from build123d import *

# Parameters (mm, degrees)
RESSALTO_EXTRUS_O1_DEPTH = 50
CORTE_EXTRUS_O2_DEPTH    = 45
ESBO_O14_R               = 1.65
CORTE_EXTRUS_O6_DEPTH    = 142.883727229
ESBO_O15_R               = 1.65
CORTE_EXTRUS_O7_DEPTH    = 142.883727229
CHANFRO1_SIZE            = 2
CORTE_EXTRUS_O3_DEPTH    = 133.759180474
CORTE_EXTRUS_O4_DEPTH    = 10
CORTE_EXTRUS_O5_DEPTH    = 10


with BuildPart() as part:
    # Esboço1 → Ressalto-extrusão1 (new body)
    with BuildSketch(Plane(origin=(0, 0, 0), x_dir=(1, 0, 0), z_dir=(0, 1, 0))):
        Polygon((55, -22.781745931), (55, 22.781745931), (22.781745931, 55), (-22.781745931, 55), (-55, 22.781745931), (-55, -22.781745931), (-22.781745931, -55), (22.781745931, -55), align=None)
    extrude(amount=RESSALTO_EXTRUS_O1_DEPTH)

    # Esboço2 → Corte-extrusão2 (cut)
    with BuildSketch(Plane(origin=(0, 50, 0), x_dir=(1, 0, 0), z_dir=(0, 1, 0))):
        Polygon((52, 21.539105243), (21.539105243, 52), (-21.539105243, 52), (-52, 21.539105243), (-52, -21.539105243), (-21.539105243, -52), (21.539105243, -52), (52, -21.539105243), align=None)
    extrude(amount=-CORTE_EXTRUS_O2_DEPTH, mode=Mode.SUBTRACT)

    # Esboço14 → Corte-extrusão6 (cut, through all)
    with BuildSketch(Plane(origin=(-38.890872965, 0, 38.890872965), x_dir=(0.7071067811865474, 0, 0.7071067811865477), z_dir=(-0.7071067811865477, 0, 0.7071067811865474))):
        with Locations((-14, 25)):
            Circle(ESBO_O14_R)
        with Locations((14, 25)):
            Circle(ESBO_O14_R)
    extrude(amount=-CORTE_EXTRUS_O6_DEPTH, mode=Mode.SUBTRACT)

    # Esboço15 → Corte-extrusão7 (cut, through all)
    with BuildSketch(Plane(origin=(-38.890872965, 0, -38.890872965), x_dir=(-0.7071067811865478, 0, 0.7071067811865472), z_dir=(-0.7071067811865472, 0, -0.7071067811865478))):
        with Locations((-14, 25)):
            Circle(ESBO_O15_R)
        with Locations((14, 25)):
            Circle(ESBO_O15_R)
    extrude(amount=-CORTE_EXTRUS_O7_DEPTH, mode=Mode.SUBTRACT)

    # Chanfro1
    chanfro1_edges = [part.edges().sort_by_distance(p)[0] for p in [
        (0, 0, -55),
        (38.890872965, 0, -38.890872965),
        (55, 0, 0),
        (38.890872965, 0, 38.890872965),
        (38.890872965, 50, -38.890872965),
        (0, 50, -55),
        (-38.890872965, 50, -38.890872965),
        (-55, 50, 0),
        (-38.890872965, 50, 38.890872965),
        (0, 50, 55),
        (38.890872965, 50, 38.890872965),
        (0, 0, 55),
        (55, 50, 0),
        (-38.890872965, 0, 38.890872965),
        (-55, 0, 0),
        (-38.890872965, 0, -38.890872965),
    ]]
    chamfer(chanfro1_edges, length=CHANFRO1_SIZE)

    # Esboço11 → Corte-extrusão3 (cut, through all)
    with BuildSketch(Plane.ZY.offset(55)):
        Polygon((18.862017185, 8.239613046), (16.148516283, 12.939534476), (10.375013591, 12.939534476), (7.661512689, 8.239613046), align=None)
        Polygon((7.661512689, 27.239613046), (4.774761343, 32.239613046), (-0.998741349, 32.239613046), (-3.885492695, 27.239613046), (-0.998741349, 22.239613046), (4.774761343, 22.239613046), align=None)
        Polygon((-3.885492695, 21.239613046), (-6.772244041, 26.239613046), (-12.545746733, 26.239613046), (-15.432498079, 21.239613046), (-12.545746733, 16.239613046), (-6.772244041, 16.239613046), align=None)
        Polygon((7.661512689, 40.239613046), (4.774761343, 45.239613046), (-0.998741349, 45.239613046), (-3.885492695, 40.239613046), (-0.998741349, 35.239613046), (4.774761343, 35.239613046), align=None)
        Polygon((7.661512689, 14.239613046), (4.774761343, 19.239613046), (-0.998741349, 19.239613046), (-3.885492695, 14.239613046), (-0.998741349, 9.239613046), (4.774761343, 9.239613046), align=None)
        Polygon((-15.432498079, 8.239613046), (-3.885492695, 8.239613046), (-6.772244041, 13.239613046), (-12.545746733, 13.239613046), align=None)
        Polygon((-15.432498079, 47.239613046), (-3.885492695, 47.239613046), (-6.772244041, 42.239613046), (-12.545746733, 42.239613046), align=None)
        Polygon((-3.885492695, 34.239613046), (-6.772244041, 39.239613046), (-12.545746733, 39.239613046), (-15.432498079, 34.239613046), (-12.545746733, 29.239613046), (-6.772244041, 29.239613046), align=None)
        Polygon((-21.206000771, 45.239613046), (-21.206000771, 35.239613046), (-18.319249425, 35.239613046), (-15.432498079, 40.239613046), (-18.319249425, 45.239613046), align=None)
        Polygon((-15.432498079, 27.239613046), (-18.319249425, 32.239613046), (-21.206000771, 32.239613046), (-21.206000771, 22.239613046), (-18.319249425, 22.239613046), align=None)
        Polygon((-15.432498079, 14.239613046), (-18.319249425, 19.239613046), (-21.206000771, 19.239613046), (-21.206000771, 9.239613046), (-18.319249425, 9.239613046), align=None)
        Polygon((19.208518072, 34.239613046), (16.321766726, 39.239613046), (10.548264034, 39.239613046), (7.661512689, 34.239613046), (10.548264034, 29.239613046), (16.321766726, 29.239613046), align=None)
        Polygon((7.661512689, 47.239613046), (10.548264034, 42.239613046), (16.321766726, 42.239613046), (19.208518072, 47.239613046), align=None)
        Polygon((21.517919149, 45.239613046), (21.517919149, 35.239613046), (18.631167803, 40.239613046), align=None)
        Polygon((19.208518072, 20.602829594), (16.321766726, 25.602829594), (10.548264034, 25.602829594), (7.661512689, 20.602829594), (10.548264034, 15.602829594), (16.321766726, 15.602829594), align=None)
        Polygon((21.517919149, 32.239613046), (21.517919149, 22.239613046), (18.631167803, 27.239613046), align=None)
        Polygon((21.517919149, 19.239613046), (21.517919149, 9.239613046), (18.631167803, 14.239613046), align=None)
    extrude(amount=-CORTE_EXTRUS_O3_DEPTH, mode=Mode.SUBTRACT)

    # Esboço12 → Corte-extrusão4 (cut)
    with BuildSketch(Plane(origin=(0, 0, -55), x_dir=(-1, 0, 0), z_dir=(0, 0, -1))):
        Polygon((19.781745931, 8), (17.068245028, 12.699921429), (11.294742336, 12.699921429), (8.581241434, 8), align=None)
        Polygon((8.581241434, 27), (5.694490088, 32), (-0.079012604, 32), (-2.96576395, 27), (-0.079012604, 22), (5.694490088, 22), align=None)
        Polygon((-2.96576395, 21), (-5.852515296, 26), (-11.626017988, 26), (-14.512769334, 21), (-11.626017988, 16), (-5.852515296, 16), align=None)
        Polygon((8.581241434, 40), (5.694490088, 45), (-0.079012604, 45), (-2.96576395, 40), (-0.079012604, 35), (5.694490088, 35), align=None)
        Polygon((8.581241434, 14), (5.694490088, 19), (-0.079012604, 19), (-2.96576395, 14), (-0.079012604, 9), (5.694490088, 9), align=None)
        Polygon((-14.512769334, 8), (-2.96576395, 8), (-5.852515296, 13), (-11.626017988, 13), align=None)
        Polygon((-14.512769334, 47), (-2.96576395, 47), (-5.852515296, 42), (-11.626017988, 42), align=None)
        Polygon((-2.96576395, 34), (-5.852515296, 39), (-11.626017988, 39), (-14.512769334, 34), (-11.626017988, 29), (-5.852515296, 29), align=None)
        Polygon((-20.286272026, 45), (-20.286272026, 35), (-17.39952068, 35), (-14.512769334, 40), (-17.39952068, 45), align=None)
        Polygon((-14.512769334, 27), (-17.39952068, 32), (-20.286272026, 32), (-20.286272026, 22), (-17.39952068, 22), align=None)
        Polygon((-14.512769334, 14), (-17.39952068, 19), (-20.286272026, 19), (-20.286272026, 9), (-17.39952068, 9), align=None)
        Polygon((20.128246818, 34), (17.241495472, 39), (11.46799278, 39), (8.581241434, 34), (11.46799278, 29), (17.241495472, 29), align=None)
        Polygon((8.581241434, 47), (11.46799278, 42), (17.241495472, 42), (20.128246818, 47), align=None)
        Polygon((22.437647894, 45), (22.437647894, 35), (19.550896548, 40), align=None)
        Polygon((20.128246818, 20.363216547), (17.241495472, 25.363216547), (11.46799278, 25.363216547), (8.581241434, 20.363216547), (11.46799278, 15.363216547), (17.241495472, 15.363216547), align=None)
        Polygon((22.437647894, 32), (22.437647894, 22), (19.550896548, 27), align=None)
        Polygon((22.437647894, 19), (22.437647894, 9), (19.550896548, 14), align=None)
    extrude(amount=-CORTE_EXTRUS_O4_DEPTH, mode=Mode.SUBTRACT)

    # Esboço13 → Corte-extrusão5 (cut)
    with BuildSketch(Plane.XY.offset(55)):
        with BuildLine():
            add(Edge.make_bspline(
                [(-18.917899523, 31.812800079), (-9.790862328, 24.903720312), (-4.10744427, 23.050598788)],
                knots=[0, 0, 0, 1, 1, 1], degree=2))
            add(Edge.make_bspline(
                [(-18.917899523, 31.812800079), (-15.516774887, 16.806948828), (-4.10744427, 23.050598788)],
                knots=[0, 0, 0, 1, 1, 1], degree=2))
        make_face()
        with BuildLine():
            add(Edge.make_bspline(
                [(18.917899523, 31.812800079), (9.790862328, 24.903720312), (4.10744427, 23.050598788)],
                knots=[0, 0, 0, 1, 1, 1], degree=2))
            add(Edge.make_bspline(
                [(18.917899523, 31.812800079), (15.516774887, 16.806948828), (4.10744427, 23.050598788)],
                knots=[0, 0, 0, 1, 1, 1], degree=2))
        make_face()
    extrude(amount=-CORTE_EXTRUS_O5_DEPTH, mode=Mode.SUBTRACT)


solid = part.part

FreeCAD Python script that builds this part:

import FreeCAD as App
import Part
import Sketcher
from FreeCAD import Vector
Q = App.Units.Quantity


def edges_at(feature, points):
    """Names of the edges that pass closest to the given points."""
    edges = feature.Shape.Edges
    near = lambda p: min(range(len(edges)), key=lambda i: edges[i].distToShape(Part.Vertex(*p))[0])
    return sorted({f"Edge{near(p) + 1}" for p in points})


def add_polygon(sketch, points):
    """Adds a closed chain of lines whose ends are joined by coincident constraints."""
    first, n = sketch.GeometryCount, len(points)
    for a, b in zip(points, points[1:] + points[:1]):
        sketch.addGeometry(Part.LineSegment(App.Vector(*a, 0), App.Vector(*b, 0)), False)
    for i in range(n):
        sketch.addConstraint(Sketcher.Constraint("Coincident", first + i, 2, first + (i + 1) % n, 1))

doc = App.newDocument("Part")
params = doc.addObject("Spreadsheet::Sheet", "Params")
for row, (alias, value) in enumerate([
    ("pad1_length", "50 mm"),
    ("pocket1_length", "45 mm"),
    ("sketch3_diameter", "3.3 mm"),
    ("sketch4_diameter", "3.3 mm"),
    ("chamfer_size", "2 mm"),
    ("sketch5_width", "10 mm"),
    ("sketch6_height", "10 mm"),
    ("pocket5_length", "10 mm"),
    ("pocket6_length", "10 mm"),
], start=1):
    params.set(f"A{row}", alias)
    params.set(f"B{row}", "=" + value)
    params.setAlias(f"B{row}", alias)

body = doc.addObject("PartDesign::Body", "Body")

# Sketch on XZ plane
sketch1 = body.newObject("Sketcher::SketchObject", "Sketch")
sketch1.AttachmentSupport = (doc.getObject("XZ_Plane"), [""])
sketch1.MapMode = "FlatFace"
add_polygon(sketch1, [(55, 23), (55, -23), (23, -55), (-23, -55), (-55, -23), (-55, 23), (-23, 55), (23, 55)])  # lines 0-7
sketch1.addConstraint([
    Sketcher.Constraint("Vertical", 0),
    Sketcher.Constraint("Horizontal", 2),
    Sketcher.Constraint("Vertical", 4),
    Sketcher.Constraint("Horizontal", 6),
    Sketcher.Constraint("Symmetric", 0, 2, 4, 2, -1, 1),
    Sketcher.Constraint("Symmetric", 1, 2, 5, 2, -1, 1),
    Sketcher.Constraint("Perpendicular", 1, 3),
    Sketcher.Constraint("Perpendicular", 5, 7),
    Sketcher.Constraint("Horizontal", 0, 2, 3, 2),
    Sketcher.Constraint("Horizontal", 4, 2, 7, 2),
    Sketcher.Constraint("Vertical", 2, 2, 5, 2),
    Sketcher.Constraint("Equal", 6, 0),
    Sketcher.Constraint("DistanceX", -1, 1, 0, 2, 55.0),
    Sketcher.Constraint("DistanceX", 2, 2, 2, 1, 45.563492),
])
pad1 = body.newObject("PartDesign::Pad", "Pad")
pad1.Profile = sketch1
pad1.setExpression("Length", "Params.pad1_length")
pad1.Reversed = True

# Sketch on XZ plane
sketch2 = body.newObject("Sketcher::SketchObject", "Sketch001")
sketch2.AttachmentSupport = (doc.getObject("XZ_Plane"), [""])
sketch2.MapMode = "FlatFace"
sketch2.AttachmentOffset = App.Placement(Vector(0, 0, -50), App.Rotation())
add_polygon(sketch2, [(52, -22), (22, -52), (-22, -52), (-52, -22), (-52, 22), (-22, 52), (22, 52), (52, 22)])  # lines 0-7
sketch2.addConstraint([
    Sketcher.Constraint("Horizontal", 1),
    Sketcher.Constraint("Vertical", 3),
    Sketcher.Constraint("Horizontal", 5),
    Sketcher.Constraint("Vertical", 7),
    Sketcher.Constraint("Symmetric", 0, 2, 4, 2, -1, 1),
    Sketcher.Constraint("Symmetric", 2, 2, 6, 2, -1, 1),
    Sketcher.Constraint("Perpendicular", 0, 2),
    Sketcher.Constraint("Perpendicular", 2, 4),
    Sketcher.Constraint("Perpendicular", 4, 6),
    Sketcher.Constraint("Horizontal", 3, 2, 6, 2),
    Sketcher.Constraint("Vertical", 1, 2, 4, 2),
    Sketcher.Constraint("Equal", 5, 3),
    Sketcher.Constraint("DistanceY", 0, 2, -1, 1, 52.0),
    Sketcher.Constraint("DistanceX", 1, 2, 1, 1, 43.07821),
])
pocket1 = body.newObject("PartDesign::Pocket", "Pocket")
pocket1.Profile = sketch2
pocket1.setExpression("Length", "Params.pocket1_length")
pocket1.Reversed = True

# Sketch on an angled plane
sketch3 = body.newObject("Sketcher::SketchObject", "Sketch002")
sketch3.Placement = App.Placement(Vector(-38.890873, 0, 38.890873), App.Rotation(Vector(0.707106781, 0, 0.707106781), Vector(0, 0.999999999, 0), Vector(-0.707106781, 0, 0.707106781), "ZXY"))
sketch3.addGeometry([
    Part.Circle(Vector(-14, 25, 0), Vector(0, 0, 1), 1.6),
    Part.Circle(Vector(14, 25, 0), Vector(0, 0, 1), 1.6),
], False)
sketch3.addConstraint([
    Sketcher.Constraint("Equal", 0, 1),
    Sketcher.Constraint("Symmetric", 0, 3, 1, 3, -2),
    Sketcher.Constraint("Diameter", 0, 3.3),
    Sketcher.Constraint("DistanceX", 0, 3, -1, 1, 14.0),
    Sketcher.Constraint("DistanceY", -1, 1, 0, 3, 25.0),
])
sketch3.setExpression("Constraints[2]", "Params.sketch3_diameter")
pocket2 = body.newObject("PartDesign::Pocket", "Pocket001")
pocket2.Profile = sketch3
pocket2.Type = "ThroughAll"

# Sketch on an angled plane
sketch4 = body.newObject("Sketcher::SketchObject", "Sketch003")
sketch4.Placement = App.Placement(Vector(-38.890873, 0, -38.890873), App.Rotation(Vector(-0.707106781, 0, 0.707106781), Vector(0, 0.999999999, 0), Vector(-0.707106781, 0, -0.707106781), "ZXY"))
sketch4.addGeometry([
    Part.Circle(Vector(-14, 25, 0), Vector(0, 0, 1), 1.6),
    Part.Circle(Vector(14, 25, 0), Vector(0, 0, 1), 1.6),
], False)
sketch4.addConstraint([
    Sketcher.Constraint("Equal", 0, 1),
    Sketcher.Constraint("Symmetric", 0, 3, 1, 3, -2),
    Sketcher.Constraint("Diameter", 0, 3.3),
    Sketcher.Constraint("DistanceX", 0, 3, -1, 1, 14.0),
    Sketcher.Constraint("DistanceY", -1, 1, 0, 3, 25.0),
])
sketch4.setExpression("Constraints[2]", "Params.sketch4_diameter")
pocket3 = body.newObject("PartDesign::Pocket", "Pocket002")
pocket3.Profile = sketch4
pocket3.Type = "ThroughAll"
doc.recompute()

chamfer = body.newObject("PartDesign::Chamfer", "Chamfer")
chamfer.Base = (pocket3, edges_at(pocket3, [
    (0, 0, -55),
    (38.891, 0, -38.891),
    (55, 0, 0),
    (38.891, 0, 38.891),
    (38.891, 50, -38.891),
    (0, 50, -55),
    (-38.891, 50, -38.891),
    (-55, 50, 0),
    (-38.891, 50, 38.891),
    (0, 50, 55),
    (38.891, 50, 38.891),
    (0, 0, 55),
    (55, 50, 0),
    (-38.891, 0, 38.891),
    (-55, 0, 0),
    (-38.891, 0, -38.891),
]))
chamfer.setExpression("Size", "Params.chamfer_size")

# Sketch on YZ plane
sketch5 = body.newObject("Sketcher::SketchObject", "Sketch004")
sketch5.AttachmentSupport = (doc.getObject("YZ_Plane"), [""])
sketch5.MapMode = "FlatFace"
sketch5.AttachmentOffset = App.Placement(Vector(0, 0, -55), App.Rotation())
add_polygon(sketch5, [(8.2, 18.9), (12.9, 16.1), (12.9, 10.4), (8.2, 7.7)])  # lines 0-3
add_polygon(sketch5, [(27.2, 7.7), (32.2, 4.8), (32.2, -1), (27.2, -3.9), (22.2, -1), (22.2, 4.8)])  # lines 4-9
add_polygon(sketch5, [(21.2, -3.9), (26.2, -6.8), (26.2, -12.5), (21.2, -15.4), (16.2, -12.5), (16.2, -6.8)])  # lines 10-15
add_polygon(sketch5, [(40.2, 7.7), (45.2, 4.8), (45.2, -1), (40.2, -3.9), (35.2, -1), (35.2, 4.8)])  # lines 16-21
add_polygon(sketch5, [(14.2, 7.7), (19.2, 4.8), (19.2, -1), (14.2, -3.9), (9.2, -1), (9.2, 4.8)])  # lines 22-27
add_polygon(sketch5, [(8.2, -15.4), (8.2, -3.9), (13.2, -6.8), (13.2, -12.5)])  # lines 28-31
add_polygon(sketch5, [(47.2, -3.9), (47.2, -15.4), (42.2, -12.5), (42.2, -6.8)])  # lines 32-35
add_polygon(sketch5, [(34.2, -3.9), (39.2, -6.8), (39.2, -12.5), (34.2, -15.4), (29.2, -12.5), (29.2, -6.8)])  # lines 36-41
add_polygon(sketch5, [(45.2, -21.2), (35.2, -21.2), (35.2, -18.3), (40.2, -15.4), (45.2, -18.3)])  # lines 42-46
add_polygon(sketch5, [(27.2, -15.4), (32.2, -18.3), (32.2, -21.2), (22.2, -21.2), (22.2, -18.3)])  # lines 47-51
add_polygon(sketch5, [(14.2, -15.4), (19.2, -18.3), (19.2, -21.2), (9.2, -21.2), (9.2, -18.3)])  # lines 52-56
add_polygon(sketch5, [(34.2, 19.2), (39.2, 16.3), (39.2, 10.5), (34.2, 7.7), (29.2, 10.5), (29.2, 16.3)])  # lines 57-62
add_polygon(sketch5, [(47.2, 7.7), (42.2, 10.5), (42.2, 16.3), (47.2, 19.2)])  # lines 63-66
add_polygon(sketch5, [(35.2, 21.5), (45.2, 21.5), (40.2, 18.6)])  # lines 67-69
add_polygon(sketch5, [(20.6, 19.2), (25.6, 16.3), (25.6, 10.5), (20.6, 7.7), (15.6, 10.5), (15.6, 16.3)])  # lines 70-75
add_polygon(sketch5, [(22.2, 21.5), (32.2, 21.5), (27.2, 18.6)])  # lines 76-78
add_polygon(sketch5, [(9.2, 21.5), (19.2, 21.5), (14.2, 18.6)])  # lines 79-81
sketch5.addConstraint([
    Sketcher.Constraint("Vertical", 1),
    Sketcher.Constraint("Vertical", 3),
    Sketcher.Constraint("Vertical", 5),
    Sketcher.Constraint("Vertical", 8),
    Sketcher.Constraint("Vertical", 11),
    Sketcher.Constraint("Vertical", 14),
    Sketcher.Constraint("Vertical", 17),
    Sketcher.Constraint("Vertical", 20),
    Sketcher.Constraint("Vertical", 23),
    Sketcher.Constraint("Vertical", 26),
    Sketcher.Constraint("Vertical", 28),
    Sketcher.Constraint("Vertical", 30),
    Sketcher.Constraint("Vertical", 32),
    Sketcher.Constraint("Vertical", 34),
    Sketcher.Constraint("Vertical", 37),
    Sketcher.Constraint("Vertical", 40),
    Sketcher.Constraint("Horizontal", 42),
    Sketcher.Constraint("Vertical", 43),
    Sketcher.Constraint("Vertical", 46),
    Sketcher.Constraint("Vertical", 48),
    Sketcher.Constraint("Horizontal", 49),
    Sketcher.Constraint("Vertical", 50),
    Sketcher.Constraint("Vertical", 53),
    Sketcher.Constraint("Horizontal", 54),
    Sketcher.Constraint("Vertical", 55),
    Sketcher.Constraint("Vertical", 58),
    Sketcher.Constraint("Vertical", 61),
    Sketcher.Constraint("Vertical", 64),
    Sketcher.Constraint("Vertical", 66),
    Sketcher.Constraint("Horizontal", 67),
    Sketcher.Constraint("Vertical", 71),
    Sketcher.Constraint("Vertical", 74),
    Sketcher.Constraint("Horizontal", 76),
    Sketcher.Constraint("Horizontal", 79),
    Sketcher.Constraint("Parallel", 0, 4),
    Sketcher.Constraint("Parallel", 2, 6),
    Sketcher.Constraint("Parallel", 4, 7),
    Sketcher.Constraint("Parallel", 6, 9),
    Sketcher.Constraint("Parallel", 7, 10),
    Sketcher.Constraint("Parallel", 9, 12),
    Sketcher.Constraint("Parallel", 10, 13),
    Sketcher.Constraint("Parallel", 12, 15),
    Sketcher.Constraint("Parallel", 13, 16),
    Sketcher.Constraint("Parallel", 15, 18),
    Sketcher.Constraint("Parallel", 16, 19),
    Sketcher.Constraint("Parallel", 18, 21),
    Sketcher.Constraint("Parallel", 19, 22),
    Sketcher.Constraint("Parallel", 21, 24),
    Sketcher.Constraint("Parallel", 22, 25),
    Sketcher.Constraint("Parallel", 24, 27),
    Sketcher.Constraint("Parallel", 25, 29),
    Sketcher.Constraint("Parallel", 27, 31),
    Sketcher.Constraint("Parallel", 29, 33),
    Sketcher.Constraint("Parallel", 31, 35),
    Sketcher.Constraint("Parallel", 33, 36),
    Sketcher.Constraint("Parallel", 35, 38),
    Sketcher.Constraint("Parallel", 36, 39),
    Sketcher.Constraint("Parallel", 38, 41),
    Sketcher.Constraint("Parallel", 41, 44),
    Sketcher.Constraint("Parallel", 39, 45),
    Sketcher.Constraint("Parallel", 45, 47),
    Sketcher.Constraint("Parallel", 44, 51),
    Sketcher.Constraint("Parallel", 47, 52),
    Sketcher.Constraint("Parallel", 51, 56),
    Sketcher.Constraint("Parallel", 52, 57),
    Sketcher.Constraint("Parallel", 56, 59),
    Sketcher.Constraint("Parallel", 57, 60),
    Sketcher.Constraint("Parallel", 59, 62),
    Sketcher.Constraint("Parallel", 60, 63),
    Sketcher.Constraint("Parallel", 62, 65),
    Sketcher.Constraint("Parallel", 65, 68),
    Sketcher.Constraint("Parallel", 63, 69),
    Sketcher.Constraint("Parallel", 69, 70),
    Sketcher.Constraint("Parallel", 68, 72),
    Sketcher.Constraint("Parallel", 70, 73),
    Sketcher.Constraint("Parallel", 72, 75),
    Sketcher.Constraint("Parallel", 75, 77),
    Sketcher.Constraint("Parallel", 73, 78),
    Sketcher.Constraint("Parallel", 77, 80),
    Sketcher.Constraint("Parallel", 78, 81),
    Sketcher.Constraint("Horizontal", 5, 2, 7, 2),
    Sketcher.Constraint("Horizontal", 4, 2, 8, 2),
    Sketcher.Constraint("Horizontal", 2, 2, 9, 2),
    Sketcher.Constraint("Horizontal", 11, 2, 13, 2),
    Sketcher.Constraint("Horizontal", 10, 2, 14, 2),
    Sketcher.Constraint("Horizontal", 6, 2, 15, 2),
    Sketcher.Constraint("Horizontal", 8, 2, 16, 2),
    Sketcher.Constraint("Horizontal", 7, 2, 17, 2),
    Sketcher.Constraint("Horizontal", 15, 2, 18, 2),
    Sketcher.Constraint("Horizontal", 17, 2, 19, 2),
    Sketcher.Constraint("Horizontal", 16, 2, 20, 2),
    Sketcher.Constraint("Horizontal", 20, 2, 22, 2),
    Sketcher.Constraint("Horizontal", 19, 2, 23, 2),
    Sketcher.Constraint("Horizontal", 18, 2, 24, 2),
    Sketcher.Constraint("Horizontal", 23, 2, 25, 2),
    Sketcher.Constraint("Horizontal", 22, 2, 26, 2),
    Sketcher.Constraint("Horizontal", 24, 2, 28, 2),
    Sketcher.Constraint("Horizontal", 14, 2, 29, 2),
    Sketcher.Constraint("Horizontal", 13, 2, 30, 2),
    Sketcher.Constraint("Horizontal", 12, 2, 31, 2),
    Sketcher.Constraint("Horizontal", 31, 2, 32, 2),
    Sketcher.Constraint("Horizontal", 30, 2, 33, 2),
    Sketcher.Constraint("Horizontal", 29, 2, 34, 2),
    Sketcher.Constraint("Horizontal", 34, 2, 36, 2),
    Sketcher.Constraint("Horizontal", 33, 2, 37, 2),
    Sketcher.Constraint("Horizontal", 32, 2, 38, 2),
    Sketcher.Constraint("Horizontal", 37, 2, 39, 2),
    Sketcher.Constraint("Horizontal", 36, 2, 40, 2),
    Sketcher.Constraint("Horizontal", 38, 2, 44, 2),
    Sketcher.Constraint("Horizontal", 43, 2, 45, 2),
    Sketcher.Constraint("Horizontal", 45, 2, 47, 2),
    Sketcher.Constraint("Horizontal", 46, 2, 48, 2),
    Sketcher.Constraint("Horizontal", 47, 2, 50, 2),
    Sketcher.Constraint("Horizontal", 44, 2, 51, 2),
    Sketcher.Constraint("Horizontal", 50, 2, 52, 2),
    Sketcher.Constraint("Horizontal", 49, 2, 53, 2),
    Sketcher.Constraint("Horizontal", 52, 2, 55, 2),
    Sketcher.Constraint("Horizontal", 51, 2, 56, 2),
    Sketcher.Constraint("Horizontal", 27, 2, 59, 2),
    Sketcher.Constraint("Horizontal", 58, 2, 60, 2),
    Sketcher.Constraint("Horizontal", 57, 2, 61, 2),
    Sketcher.Constraint("Horizontal", 60, 2, 63, 2),
    Sketcher.Constraint("Horizontal", 61, 2, 64, 2),
    Sketcher.Constraint("Horizontal", 62, 2, 65, 2),
    Sketcher.Constraint("Horizontal", 64, 2, 70, 2),
    Sketcher.Constraint("Horizontal", 63, 2, 71, 2),
    Sketcher.Constraint("Horizontal", 66, 2, 72, 2),
    Sketcher.Constraint("Horizontal", 71, 2, 73, 2),
    Sketcher.Constraint("Horizontal", 70, 2, 74, 2),
    Sketcher.Constraint("Horizontal", 69, 2, 76, 2),
    Sketcher.Constraint("Horizontal", 68, 2, 77, 2),
    Sketcher.Constraint("Horizontal", 78, 2, 79, 2),
    Sketcher.Constraint("Horizontal", 77, 2, 80, 2),
    Sketcher.Constraint("Vertical", 3, 2, 28, 2),
    Sketcher.Constraint("Vertical", 20, 2, 42, 2),
    Sketcher.Constraint("Vertical", 21, 2, 44, 2),
    Sketcher.Constraint("Vertical", 5, 2, 47, 2),
    Sketcher.Constraint("Vertical", 23, 2, 52, 2),
    Sketcher.Constraint("Vertical", 37, 2, 57, 2),
    Sketcher.Constraint("Vertical", 41, 2, 59, 2),
    Sketcher.Constraint("Vertical", 34, 2, 63, 2),
    Sketcher.Constraint("Vertical", 46, 2, 67, 2),
    Sketcher.Constraint("Vertical", 44, 2, 68, 2),
    Sketcher.Constraint("Vertical", 48, 2, 76, 2),
    Sketcher.Constraint("Vertical", 53, 2, 79, 2),
    Sketcher.Constraint("Equal", 1, 5),
    Sketcher.Constraint("Equal", 8, 11),
    Sketcher.Constraint("Equal", 40, 58),
    Sketcher.Constraint("Equal", 9, 10),
    Sketcher.Constraint("DistanceX", 42, 2, 42, 1, 10.0),
    Sketcher.Constraint("Angle", 0, Q("-30 deg")),
    Sketcher.Constraint("Distance", 0, 5.427002),
    Sketcher.Constraint("DistanceY", 42, 2, -1, 1, 21.206001),
    Sketcher.Constraint("DistanceY", 43, 1, 43, 2, 2.886751),
    Sketcher.Constraint("DistanceY", 1, 2, 1, 1, 5.773503),
    Sketcher.Constraint("DistanceY", -1, 1, 67, 2, 21.517919),
    Sketcher.Constraint("DistanceX", -1, 1, 70, 2, 25.60283),
    Sketcher.Constraint("DistanceX", -1, 1, 0, 2, 12.939534),
    Sketcher.Constraint("DistanceX", -1, 1, 4, 2, 32.239613),
    Sketcher.Constraint("DistanceX", -1, 1, 10, 2, 26.239613),
    Sketcher.Constraint("DistanceX", -1, 1, 16, 2, 45.239613),
    Sketcher.Constraint("DistanceX", -1, 1, 22, 2, 19.239613),
    Sketcher.Constraint("DistanceX", -1, 1, 32, 2, 47.239613),
    Sketcher.Constraint("DistanceX", -1, 1, 36, 2, 39.239613),
])
sketch5.setExpression("Constraints[231]", "Params.sketch5_width")
pocket4 = body.newObject("PartDesign::Pocket", "Pocket003")
pocket4.Profile = sketch5
pocket4.Type = "ThroughAll"
pocket4.Reversed = True

# Sketch on XY plane
sketch6 = body.newObject("Sketcher::SketchObject", "Sketch005")
sketch6.AttachmentSupport = (doc.getObject("XY_Plane"), [""])
sketch6.MapMode = "FlatFace"
sketch6.AttachmentOffset = App.Placement(Vector(0, 0, -55), App.Rotation())
add_polygon(sketch6, [(-19.8, 8), (-17.1, 12.7), (-11.3, 12.7), (-8.6, 8)])  # lines 0-3
add_polygon(sketch6, [(-8.6, 27), (-5.7, 32), (0.1, 32), (3, 27), (0.1, 22), (-5.7, 22)])  # lines 4-9
add_polygon(sketch6, [(3, 21), (5.9, 26), (11.6, 26), (14.5, 21), (11.6, 16), (5.9, 16)])  # lines 10-15
add_polygon(sketch6, [(-8.6, 40), (-5.7, 45), (0.1, 45), (3, 40), (0.1, 35), (-5.7, 35)])  # lines 16-21
add_polygon(sketch6, [(-8.6, 14), (-5.7, 19), (0.1, 19), (3, 14), (0.1, 9), (-5.7, 9)])  # lines 22-27
add_polygon(sketch6, [(14.5, 8), (3, 8), (5.9, 13), (11.6, 13)])  # lines 28-31
add_polygon(sketch6, [(3, 47), (14.5, 47), (11.6, 42), (5.9, 42)])  # lines 32-35
add_polygon(sketch6, [(3, 34), (5.9, 39), (11.6, 39), (14.5, 34), (11.6, 29), (5.9, 29)])  # lines 36-41
add_polygon(sketch6, [(20.3, 45), (20.3, 35), (17.4, 35), (14.5, 40), (17.4, 45)])  # lines 42-46
add_polygon(sketch6, [(14.5, 27), (17.4, 32), (20.3, 32), (20.3, 22), (17.4, 22)])  # lines 47-51
add_polygon(sketch6, [(14.5, 14), (17.4, 19), (20.3, 19), (20.3, 9), (17.4, 9)])  # lines 52-56
add_polygon(sketch6, [(-20.1, 34), (-17.2, 39), (-11.5, 39), (-8.6, 34), (-11.5, 29), (-17.2, 29)])  # lines 57-62
add_polygon(sketch6, [(-8.6, 47), (-11.5, 42), (-17.2, 42), (-20.1, 47)])  # lines 63-66
add_polygon(sketch6, [(-22.4, 35), (-22.4, 45), (-19.6, 40)])  # lines 67-69
add_polygon(sketch6, [(-20.1, 20.4), (-17.2, 25.4), (-11.5, 25.4), (-8.6, 20.4), (-11.5, 15.4), (-17.2, 15.4)])  # lines 70-75
add_polygon(sketch6, [(-22.4, 22), (-22.4, 32), (-19.6, 27)])  # lines 76-78
add_polygon(sketch6, [(-22.4, 9), (-22.4, 19), (-19.6, 14)])  # lines 79-81
sketch6.addConstraint([
    Sketcher.Constraint("Horizontal", 1),
    Sketcher.Constraint("Horizontal", 3),
    Sketcher.Constraint("Horizontal", 5),
    Sketcher.Constraint("Horizontal", 8),
    Sketcher.Constraint("Horizontal", 11),
    Sketcher.Constraint("Horizontal", 14),
    Sketcher.Constraint("Horizontal", 17),
    Sketcher.Constraint("Horizontal", 20),
    Sketcher.Constraint("Horizontal", 23),
    Sketcher.Constraint("Horizontal", 26),
    Sketcher.Constraint("Horizontal", 28),
    Sketcher.Constraint("Horizontal", 30),
    Sketcher.Constraint("Horizontal", 32),
    Sketcher.Constraint("Horizontal", 34),
    Sketcher.Constraint("Horizontal", 37),
    Sketcher.Constraint("Horizontal", 40),
    Sketcher.Constraint("Vertical", 42),
    Sketcher.Constraint("Horizontal", 43),
    Sketcher.Constraint("Horizontal", 46),
    Sketcher.Constraint("Horizontal", 48),
    Sketcher.Constraint("Vertical", 49),
    Sketcher.Constraint("Horizontal", 50),
    Sketcher.Constraint("Horizontal", 53),
    Sketcher.Constraint("Vertical", 54),
    Sketcher.Constraint("Horizontal", 55),
    Sketcher.Constraint("Horizontal", 58),
    Sketcher.Constraint("Horizontal", 61),
    Sketcher.Constraint("Horizontal", 64),
    Sketcher.Constraint("Horizontal", 66),
    Sketcher.Constraint("Vertical", 67),
    Sketcher.Constraint("Horizontal", 71),
    Sketcher.Constraint("Horizontal", 74),
    Sketcher.Constraint("Vertical", 76),
    Sketcher.Constraint("Vertical", 79),
    Sketcher.Constraint("Parallel", 0, 4),
    Sketcher.Constraint("Parallel", 2, 6),
    Sketcher.Constraint("Parallel", 4, 7),
    Sketcher.Constraint("Parallel", 6, 9),
    Sketcher.Constraint("Parallel", 7, 10),
    Sketcher.Constraint("Parallel", 9, 12),
    Sketcher.Constraint("Parallel", 10, 13),
    Sketcher.Constraint("Parallel", 12, 15),
    Sketcher.Constraint("Parallel", 13, 16),
    Sketcher.Constraint("Parallel", 15, 18),
    Sketcher.Constraint("Parallel", 16, 19),
    Sketcher.Constraint("Parallel", 18, 21),
    Sketcher.Constraint("Parallel", 19, 22),
    Sketcher.Constraint("Parallel", 21, 24),
    Sketcher.Constraint("Parallel", 22, 25),
    Sketcher.Constraint("Parallel", 24, 27),
    Sketcher.Constraint("Parallel", 25, 29),
    Sketcher.Constraint("Parallel", 27, 31),
    Sketcher.Constraint("Parallel", 29, 33),
    Sketcher.Constraint("Parallel", 31, 35),
    Sketcher.Constraint("Parallel", 33, 36),
    Sketcher.Constraint("Parallel", 35, 38),
    Sketcher.Constraint("Parallel", 36, 39),
    Sketcher.Constraint("Parallel", 38, 41),
    Sketcher.Constraint("Parallel", 41, 44),
    Sketcher.Constraint("Parallel", 39, 45),
    Sketcher.Constraint("Parallel", 45, 47),
    Sketcher.Constraint("Parallel", 44, 51),
    Sketcher.Constraint("Parallel", 47, 52),
    Sketcher.Constraint("Parallel", 51, 56),
    Sketcher.Constraint("Parallel", 52, 57),
    Sketcher.Constraint("Parallel", 56, 59),
    Sketcher.Constraint("Parallel", 57, 60),
    Sketcher.Constraint("Parallel", 59, 62),
    Sketcher.Constraint("Parallel", 60, 63),
    Sketcher.Constraint("Parallel", 62, 65),
    Sketcher.Constraint("Parallel", 65, 68),
    Sketcher.Constraint("Parallel", 63, 69),
    Sketcher.Constraint("Parallel", 69, 70),
    Sketcher.Constraint("Parallel", 68, 72),
    Sketcher.Constraint("Parallel", 70, 73),
    Sketcher.Constraint("Parallel", 72, 75),
    Sketcher.Constraint("Parallel", 75, 77),
    Sketcher.Constraint("Parallel", 73, 78),
    Sketcher.Constraint("Parallel", 77, 80),
    Sketcher.Constraint("Parallel", 78, 81),
    Sketcher.Constraint("Horizontal", 6, 2, 9, 2),
    Sketcher.Constraint("Horizontal", 12, 2, 15, 2),
    Sketcher.Constraint("Horizontal", 18, 2, 21, 2),
    Sketcher.Constraint("Horizontal", 24, 2, 27, 2),
    Sketcher.Constraint("Horizontal", 3, 2, 28, 2),
    Sketcher.Constraint("Horizontal", 38, 2, 41, 2),
    Sketcher.Constraint("Horizontal", 20, 2, 42, 2),
    Sketcher.Constraint("Horizontal", 21, 2, 44, 2),
    Sketcher.Constraint("Horizontal", 17, 2, 45, 2),
    Sketcher.Constraint("Horizontal", 5, 2, 47, 2),
    Sketcher.Constraint("Horizontal", 8, 2, 49, 2),
    Sketcher.Constraint("Horizontal", 9, 2, 51, 2),
    Sketcher.Constraint("Horizontal", 23, 2, 52, 2),
    Sketcher.Constraint("Horizontal", 26, 2, 54, 2),
    Sketcher.Constraint("Horizontal", 27, 2, 56, 2),
    Sketcher.Constraint("Horizontal", 37, 2, 57, 2),
    Sketcher.Constraint("Horizontal", 41, 2, 59, 2),
    Sketcher.Constraint("Horizontal", 40, 2, 60, 2),
    Sketcher.Constraint("Horizontal", 59, 2, 62, 2),
    Sketcher.Constraint("Horizontal", 34, 2, 63, 2),
    Sketcher.Constraint("Horizontal", 35, 2, 65, 2),
    Sketcher.Constraint("Horizontal", 46, 2, 67, 2),
    Sketcher.Constraint("Horizontal", 44, 2, 68, 2),
    Sketcher.Constraint("Horizontal", 43, 2, 69, 2),
    Sketcher.Constraint("Horizontal", 72, 2, 75, 2),
    Sketcher.Constraint("Horizontal", 48, 2, 76, 2),
    Sketcher.Constraint("Horizontal", 51, 2, 77, 2),
    Sketcher.Constraint("Horizontal", 50, 2, 78, 2),
    Sketcher.Constraint("Horizontal", 53, 2, 79, 2),
    Sketcher.Constraint("Horizontal", 56, 2, 80, 2),
    Sketcher.Constraint("Horizontal", 55, 2, 81, 2),
    Sketcher.Constraint("Vertical", 4, 2, 8, 2),
    Sketcher.Constraint("Vertical", 2, 2, 9, 2),
    Sketcher.Constraint("Vertical", 11, 2, 13, 2),
    Sketcher.Constraint("Vertical", 6, 2, 15, 2),
    Sketcher.Constraint("Vertical", 8, 2, 16, 2),
    Sketcher.Constraint("Vertical", 7, 2, 17, 2),
    Sketcher.Constraint("Vertical", 15, 2, 18, 2),
    Sketcher.Constraint("Vertical", 20, 2, 22, 2),
    Sketcher.Constraint("Vertical", 19, 2, 23, 2),
    Sketcher.Constraint("Vertical", 18, 2, 24, 2),
    Sketcher.Constraint("Vertical", 24, 2, 28, 2),
    Sketcher.Constraint("Vertical", 14, 2, 29, 2),
    Sketcher.Constraint("Vertical", 13, 2, 30, 2),
    Sketcher.Constraint("Vertical", 31, 2, 32, 2),
    Sketcher.Constraint("Vertical", 30, 2, 33, 2),
    Sketcher.Constraint("Vertical", 29, 2, 34, 2),
    Sketcher.Constraint("Vertical", 34, 2, 36, 2),
    Sketcher.Constraint("Vertical", 33, 2, 37, 2),
    Sketcher.Constraint("Vertical", 32, 2, 38, 2),
    Sketcher.Constraint("Vertical", 37, 2, 39, 2),
    Sketcher.Constraint("Vertical", 38, 2, 44, 2),
    Sketcher.Constraint("Vertical", 45, 2, 47, 2),
    Sketcher.Constraint("Vertical", 46, 2, 48, 2),
    Sketcher.Constraint("Vertical", 50, 2, 52, 2),
    Sketcher.Constraint("Vertical", 49, 2, 53, 2),
    Sketcher.Constraint("Vertical", 27, 2, 59, 2),
    Sketcher.Constraint("Vertical", 60, 2, 63, 2),
    Sketcher.Constraint("Vertical", 61, 2, 64, 2),
    Sketcher.Constraint("Vertical", 64, 2, 70, 2),
    Sketcher.Constraint("Vertical", 63, 2, 71, 2),
    Sketcher.Constraint("Vertical", 66, 2, 72, 2),
    Sketcher.Constraint("Vertical", 71, 2, 73, 2),
    Sketcher.Constraint("Vertical", 69, 2, 76, 2),
    Sketcher.Constraint("Vertical", 78, 2, 79, 2),
    Sketcher.Constraint("Equal", 1, 5),
    Sketcher.Constraint("Equal", 8, 11),
    Sketcher.Constraint("Equal", 40, 58),
    Sketcher.Constraint("Equal", 9, 10),
    Sketcher.Constraint("DistanceY", 42, 2, 42, 1, 10.0),
    Sketcher.Constraint("Angle", 0, Q("60 deg")),
    Sketcher.Constraint("DistanceY", -1, 1, 2, 2, 8.0),
    Sketcher.Constraint("DistanceY", -1, 1, 4, 2, 32.0),
    Sketcher.Constraint("DistanceY", -1, 1, 10, 2, 26.0),
    Sketcher.Constraint("DistanceY", -1, 1, 16, 2, 45.0),
    Sketcher.Constraint("DistanceY", -1, 1, 22, 2, 19.0),
    Sketcher.Constraint("DistanceY", -1, 1, 32, 2, 47.0),
    Sketcher.Constraint("DistanceY", -1, 1, 36, 2, 39.0),
    Sketcher.Constraint("Distance", 0, 5.427002),
    Sketcher.Constraint("DistanceX", 43, 2, 43, 1, 2.886751),
    Sketcher.Constraint("DistanceX", 1, 1, 1, 2, 5.773503),
    Sketcher.Constraint("DistanceX", 2, 2, -1, 1, 8.581241),
    Sketcher.Constraint("DistanceX", 67, 2, -1, 1, 22.437648),
    Sketcher.Constraint("DistanceY", -1, 1, 70, 2, 25.363217),
])
sketch6.setExpression("Constraints[231]", "Params.sketch6_height")
pocket5 = body.newObject("PartDesign::Pocket", "Pocket004")
pocket5.Profile = sketch6
pocket5.setExpression("Length", "Params.pocket5_length")
pocket5.Reversed = True

# Sketch on XY plane
sketch7 = body.newObject("Sketcher::SketchObject", "Sketch006")
sketch7.AttachmentSupport = (doc.getObject("XY_Plane"), [""])
sketch7.MapMode = "FlatFace"
sketch7.AttachmentOffset = App.Placement(Vector(0, 0, 55), App.Rotation())
sketch7.addGeometry([
    Part.BSplineCurve([Vector(-18.9179, 31.8128, 0), Vector(-9.790862, 24.90372, 0), Vector(-4.107444, 23.050599, 0)], [3, 3], [0, 1], False, 2, [1, 1, 1], False),
    Part.BSplineCurve([Vector(-18.9179, 31.8128, 0), Vector(-15.516775, 16.806949, 0), Vector(-4.107444, 23.050599, 0)], [3, 3], [0, 1], False, 2, [1, 1, 1], False),
    Part.BSplineCurve([Vector(18.9179, 31.8128, 0), Vector(9.790862, 24.90372, 0), Vector(4.107444, 23.050599, 0)], [3, 3], [0, 1], False, 2, [1, 1, 1], False),
    Part.BSplineCurve([Vector(18.9179, 31.8128, 0), Vector(15.516775, 16.806949, 0), Vector(4.107444, 23.050599, 0)], [3, 3], [0, 1], False, 2, [1, 1, 1], False),
], False)
sketch7.addConstraint([
    Sketcher.Constraint("Block", 0),
    Sketcher.Constraint("Block", 1),
    Sketcher.Constraint("Block", 2),
    Sketcher.Constraint("Block", 3),
])
pocket6 = body.newObject("PartDesign::Pocket", "Pocket005")
pocket6.Profile = sketch7
pocket6.setExpression("Length", "Params.pocket6_length")

doc.recompute()
